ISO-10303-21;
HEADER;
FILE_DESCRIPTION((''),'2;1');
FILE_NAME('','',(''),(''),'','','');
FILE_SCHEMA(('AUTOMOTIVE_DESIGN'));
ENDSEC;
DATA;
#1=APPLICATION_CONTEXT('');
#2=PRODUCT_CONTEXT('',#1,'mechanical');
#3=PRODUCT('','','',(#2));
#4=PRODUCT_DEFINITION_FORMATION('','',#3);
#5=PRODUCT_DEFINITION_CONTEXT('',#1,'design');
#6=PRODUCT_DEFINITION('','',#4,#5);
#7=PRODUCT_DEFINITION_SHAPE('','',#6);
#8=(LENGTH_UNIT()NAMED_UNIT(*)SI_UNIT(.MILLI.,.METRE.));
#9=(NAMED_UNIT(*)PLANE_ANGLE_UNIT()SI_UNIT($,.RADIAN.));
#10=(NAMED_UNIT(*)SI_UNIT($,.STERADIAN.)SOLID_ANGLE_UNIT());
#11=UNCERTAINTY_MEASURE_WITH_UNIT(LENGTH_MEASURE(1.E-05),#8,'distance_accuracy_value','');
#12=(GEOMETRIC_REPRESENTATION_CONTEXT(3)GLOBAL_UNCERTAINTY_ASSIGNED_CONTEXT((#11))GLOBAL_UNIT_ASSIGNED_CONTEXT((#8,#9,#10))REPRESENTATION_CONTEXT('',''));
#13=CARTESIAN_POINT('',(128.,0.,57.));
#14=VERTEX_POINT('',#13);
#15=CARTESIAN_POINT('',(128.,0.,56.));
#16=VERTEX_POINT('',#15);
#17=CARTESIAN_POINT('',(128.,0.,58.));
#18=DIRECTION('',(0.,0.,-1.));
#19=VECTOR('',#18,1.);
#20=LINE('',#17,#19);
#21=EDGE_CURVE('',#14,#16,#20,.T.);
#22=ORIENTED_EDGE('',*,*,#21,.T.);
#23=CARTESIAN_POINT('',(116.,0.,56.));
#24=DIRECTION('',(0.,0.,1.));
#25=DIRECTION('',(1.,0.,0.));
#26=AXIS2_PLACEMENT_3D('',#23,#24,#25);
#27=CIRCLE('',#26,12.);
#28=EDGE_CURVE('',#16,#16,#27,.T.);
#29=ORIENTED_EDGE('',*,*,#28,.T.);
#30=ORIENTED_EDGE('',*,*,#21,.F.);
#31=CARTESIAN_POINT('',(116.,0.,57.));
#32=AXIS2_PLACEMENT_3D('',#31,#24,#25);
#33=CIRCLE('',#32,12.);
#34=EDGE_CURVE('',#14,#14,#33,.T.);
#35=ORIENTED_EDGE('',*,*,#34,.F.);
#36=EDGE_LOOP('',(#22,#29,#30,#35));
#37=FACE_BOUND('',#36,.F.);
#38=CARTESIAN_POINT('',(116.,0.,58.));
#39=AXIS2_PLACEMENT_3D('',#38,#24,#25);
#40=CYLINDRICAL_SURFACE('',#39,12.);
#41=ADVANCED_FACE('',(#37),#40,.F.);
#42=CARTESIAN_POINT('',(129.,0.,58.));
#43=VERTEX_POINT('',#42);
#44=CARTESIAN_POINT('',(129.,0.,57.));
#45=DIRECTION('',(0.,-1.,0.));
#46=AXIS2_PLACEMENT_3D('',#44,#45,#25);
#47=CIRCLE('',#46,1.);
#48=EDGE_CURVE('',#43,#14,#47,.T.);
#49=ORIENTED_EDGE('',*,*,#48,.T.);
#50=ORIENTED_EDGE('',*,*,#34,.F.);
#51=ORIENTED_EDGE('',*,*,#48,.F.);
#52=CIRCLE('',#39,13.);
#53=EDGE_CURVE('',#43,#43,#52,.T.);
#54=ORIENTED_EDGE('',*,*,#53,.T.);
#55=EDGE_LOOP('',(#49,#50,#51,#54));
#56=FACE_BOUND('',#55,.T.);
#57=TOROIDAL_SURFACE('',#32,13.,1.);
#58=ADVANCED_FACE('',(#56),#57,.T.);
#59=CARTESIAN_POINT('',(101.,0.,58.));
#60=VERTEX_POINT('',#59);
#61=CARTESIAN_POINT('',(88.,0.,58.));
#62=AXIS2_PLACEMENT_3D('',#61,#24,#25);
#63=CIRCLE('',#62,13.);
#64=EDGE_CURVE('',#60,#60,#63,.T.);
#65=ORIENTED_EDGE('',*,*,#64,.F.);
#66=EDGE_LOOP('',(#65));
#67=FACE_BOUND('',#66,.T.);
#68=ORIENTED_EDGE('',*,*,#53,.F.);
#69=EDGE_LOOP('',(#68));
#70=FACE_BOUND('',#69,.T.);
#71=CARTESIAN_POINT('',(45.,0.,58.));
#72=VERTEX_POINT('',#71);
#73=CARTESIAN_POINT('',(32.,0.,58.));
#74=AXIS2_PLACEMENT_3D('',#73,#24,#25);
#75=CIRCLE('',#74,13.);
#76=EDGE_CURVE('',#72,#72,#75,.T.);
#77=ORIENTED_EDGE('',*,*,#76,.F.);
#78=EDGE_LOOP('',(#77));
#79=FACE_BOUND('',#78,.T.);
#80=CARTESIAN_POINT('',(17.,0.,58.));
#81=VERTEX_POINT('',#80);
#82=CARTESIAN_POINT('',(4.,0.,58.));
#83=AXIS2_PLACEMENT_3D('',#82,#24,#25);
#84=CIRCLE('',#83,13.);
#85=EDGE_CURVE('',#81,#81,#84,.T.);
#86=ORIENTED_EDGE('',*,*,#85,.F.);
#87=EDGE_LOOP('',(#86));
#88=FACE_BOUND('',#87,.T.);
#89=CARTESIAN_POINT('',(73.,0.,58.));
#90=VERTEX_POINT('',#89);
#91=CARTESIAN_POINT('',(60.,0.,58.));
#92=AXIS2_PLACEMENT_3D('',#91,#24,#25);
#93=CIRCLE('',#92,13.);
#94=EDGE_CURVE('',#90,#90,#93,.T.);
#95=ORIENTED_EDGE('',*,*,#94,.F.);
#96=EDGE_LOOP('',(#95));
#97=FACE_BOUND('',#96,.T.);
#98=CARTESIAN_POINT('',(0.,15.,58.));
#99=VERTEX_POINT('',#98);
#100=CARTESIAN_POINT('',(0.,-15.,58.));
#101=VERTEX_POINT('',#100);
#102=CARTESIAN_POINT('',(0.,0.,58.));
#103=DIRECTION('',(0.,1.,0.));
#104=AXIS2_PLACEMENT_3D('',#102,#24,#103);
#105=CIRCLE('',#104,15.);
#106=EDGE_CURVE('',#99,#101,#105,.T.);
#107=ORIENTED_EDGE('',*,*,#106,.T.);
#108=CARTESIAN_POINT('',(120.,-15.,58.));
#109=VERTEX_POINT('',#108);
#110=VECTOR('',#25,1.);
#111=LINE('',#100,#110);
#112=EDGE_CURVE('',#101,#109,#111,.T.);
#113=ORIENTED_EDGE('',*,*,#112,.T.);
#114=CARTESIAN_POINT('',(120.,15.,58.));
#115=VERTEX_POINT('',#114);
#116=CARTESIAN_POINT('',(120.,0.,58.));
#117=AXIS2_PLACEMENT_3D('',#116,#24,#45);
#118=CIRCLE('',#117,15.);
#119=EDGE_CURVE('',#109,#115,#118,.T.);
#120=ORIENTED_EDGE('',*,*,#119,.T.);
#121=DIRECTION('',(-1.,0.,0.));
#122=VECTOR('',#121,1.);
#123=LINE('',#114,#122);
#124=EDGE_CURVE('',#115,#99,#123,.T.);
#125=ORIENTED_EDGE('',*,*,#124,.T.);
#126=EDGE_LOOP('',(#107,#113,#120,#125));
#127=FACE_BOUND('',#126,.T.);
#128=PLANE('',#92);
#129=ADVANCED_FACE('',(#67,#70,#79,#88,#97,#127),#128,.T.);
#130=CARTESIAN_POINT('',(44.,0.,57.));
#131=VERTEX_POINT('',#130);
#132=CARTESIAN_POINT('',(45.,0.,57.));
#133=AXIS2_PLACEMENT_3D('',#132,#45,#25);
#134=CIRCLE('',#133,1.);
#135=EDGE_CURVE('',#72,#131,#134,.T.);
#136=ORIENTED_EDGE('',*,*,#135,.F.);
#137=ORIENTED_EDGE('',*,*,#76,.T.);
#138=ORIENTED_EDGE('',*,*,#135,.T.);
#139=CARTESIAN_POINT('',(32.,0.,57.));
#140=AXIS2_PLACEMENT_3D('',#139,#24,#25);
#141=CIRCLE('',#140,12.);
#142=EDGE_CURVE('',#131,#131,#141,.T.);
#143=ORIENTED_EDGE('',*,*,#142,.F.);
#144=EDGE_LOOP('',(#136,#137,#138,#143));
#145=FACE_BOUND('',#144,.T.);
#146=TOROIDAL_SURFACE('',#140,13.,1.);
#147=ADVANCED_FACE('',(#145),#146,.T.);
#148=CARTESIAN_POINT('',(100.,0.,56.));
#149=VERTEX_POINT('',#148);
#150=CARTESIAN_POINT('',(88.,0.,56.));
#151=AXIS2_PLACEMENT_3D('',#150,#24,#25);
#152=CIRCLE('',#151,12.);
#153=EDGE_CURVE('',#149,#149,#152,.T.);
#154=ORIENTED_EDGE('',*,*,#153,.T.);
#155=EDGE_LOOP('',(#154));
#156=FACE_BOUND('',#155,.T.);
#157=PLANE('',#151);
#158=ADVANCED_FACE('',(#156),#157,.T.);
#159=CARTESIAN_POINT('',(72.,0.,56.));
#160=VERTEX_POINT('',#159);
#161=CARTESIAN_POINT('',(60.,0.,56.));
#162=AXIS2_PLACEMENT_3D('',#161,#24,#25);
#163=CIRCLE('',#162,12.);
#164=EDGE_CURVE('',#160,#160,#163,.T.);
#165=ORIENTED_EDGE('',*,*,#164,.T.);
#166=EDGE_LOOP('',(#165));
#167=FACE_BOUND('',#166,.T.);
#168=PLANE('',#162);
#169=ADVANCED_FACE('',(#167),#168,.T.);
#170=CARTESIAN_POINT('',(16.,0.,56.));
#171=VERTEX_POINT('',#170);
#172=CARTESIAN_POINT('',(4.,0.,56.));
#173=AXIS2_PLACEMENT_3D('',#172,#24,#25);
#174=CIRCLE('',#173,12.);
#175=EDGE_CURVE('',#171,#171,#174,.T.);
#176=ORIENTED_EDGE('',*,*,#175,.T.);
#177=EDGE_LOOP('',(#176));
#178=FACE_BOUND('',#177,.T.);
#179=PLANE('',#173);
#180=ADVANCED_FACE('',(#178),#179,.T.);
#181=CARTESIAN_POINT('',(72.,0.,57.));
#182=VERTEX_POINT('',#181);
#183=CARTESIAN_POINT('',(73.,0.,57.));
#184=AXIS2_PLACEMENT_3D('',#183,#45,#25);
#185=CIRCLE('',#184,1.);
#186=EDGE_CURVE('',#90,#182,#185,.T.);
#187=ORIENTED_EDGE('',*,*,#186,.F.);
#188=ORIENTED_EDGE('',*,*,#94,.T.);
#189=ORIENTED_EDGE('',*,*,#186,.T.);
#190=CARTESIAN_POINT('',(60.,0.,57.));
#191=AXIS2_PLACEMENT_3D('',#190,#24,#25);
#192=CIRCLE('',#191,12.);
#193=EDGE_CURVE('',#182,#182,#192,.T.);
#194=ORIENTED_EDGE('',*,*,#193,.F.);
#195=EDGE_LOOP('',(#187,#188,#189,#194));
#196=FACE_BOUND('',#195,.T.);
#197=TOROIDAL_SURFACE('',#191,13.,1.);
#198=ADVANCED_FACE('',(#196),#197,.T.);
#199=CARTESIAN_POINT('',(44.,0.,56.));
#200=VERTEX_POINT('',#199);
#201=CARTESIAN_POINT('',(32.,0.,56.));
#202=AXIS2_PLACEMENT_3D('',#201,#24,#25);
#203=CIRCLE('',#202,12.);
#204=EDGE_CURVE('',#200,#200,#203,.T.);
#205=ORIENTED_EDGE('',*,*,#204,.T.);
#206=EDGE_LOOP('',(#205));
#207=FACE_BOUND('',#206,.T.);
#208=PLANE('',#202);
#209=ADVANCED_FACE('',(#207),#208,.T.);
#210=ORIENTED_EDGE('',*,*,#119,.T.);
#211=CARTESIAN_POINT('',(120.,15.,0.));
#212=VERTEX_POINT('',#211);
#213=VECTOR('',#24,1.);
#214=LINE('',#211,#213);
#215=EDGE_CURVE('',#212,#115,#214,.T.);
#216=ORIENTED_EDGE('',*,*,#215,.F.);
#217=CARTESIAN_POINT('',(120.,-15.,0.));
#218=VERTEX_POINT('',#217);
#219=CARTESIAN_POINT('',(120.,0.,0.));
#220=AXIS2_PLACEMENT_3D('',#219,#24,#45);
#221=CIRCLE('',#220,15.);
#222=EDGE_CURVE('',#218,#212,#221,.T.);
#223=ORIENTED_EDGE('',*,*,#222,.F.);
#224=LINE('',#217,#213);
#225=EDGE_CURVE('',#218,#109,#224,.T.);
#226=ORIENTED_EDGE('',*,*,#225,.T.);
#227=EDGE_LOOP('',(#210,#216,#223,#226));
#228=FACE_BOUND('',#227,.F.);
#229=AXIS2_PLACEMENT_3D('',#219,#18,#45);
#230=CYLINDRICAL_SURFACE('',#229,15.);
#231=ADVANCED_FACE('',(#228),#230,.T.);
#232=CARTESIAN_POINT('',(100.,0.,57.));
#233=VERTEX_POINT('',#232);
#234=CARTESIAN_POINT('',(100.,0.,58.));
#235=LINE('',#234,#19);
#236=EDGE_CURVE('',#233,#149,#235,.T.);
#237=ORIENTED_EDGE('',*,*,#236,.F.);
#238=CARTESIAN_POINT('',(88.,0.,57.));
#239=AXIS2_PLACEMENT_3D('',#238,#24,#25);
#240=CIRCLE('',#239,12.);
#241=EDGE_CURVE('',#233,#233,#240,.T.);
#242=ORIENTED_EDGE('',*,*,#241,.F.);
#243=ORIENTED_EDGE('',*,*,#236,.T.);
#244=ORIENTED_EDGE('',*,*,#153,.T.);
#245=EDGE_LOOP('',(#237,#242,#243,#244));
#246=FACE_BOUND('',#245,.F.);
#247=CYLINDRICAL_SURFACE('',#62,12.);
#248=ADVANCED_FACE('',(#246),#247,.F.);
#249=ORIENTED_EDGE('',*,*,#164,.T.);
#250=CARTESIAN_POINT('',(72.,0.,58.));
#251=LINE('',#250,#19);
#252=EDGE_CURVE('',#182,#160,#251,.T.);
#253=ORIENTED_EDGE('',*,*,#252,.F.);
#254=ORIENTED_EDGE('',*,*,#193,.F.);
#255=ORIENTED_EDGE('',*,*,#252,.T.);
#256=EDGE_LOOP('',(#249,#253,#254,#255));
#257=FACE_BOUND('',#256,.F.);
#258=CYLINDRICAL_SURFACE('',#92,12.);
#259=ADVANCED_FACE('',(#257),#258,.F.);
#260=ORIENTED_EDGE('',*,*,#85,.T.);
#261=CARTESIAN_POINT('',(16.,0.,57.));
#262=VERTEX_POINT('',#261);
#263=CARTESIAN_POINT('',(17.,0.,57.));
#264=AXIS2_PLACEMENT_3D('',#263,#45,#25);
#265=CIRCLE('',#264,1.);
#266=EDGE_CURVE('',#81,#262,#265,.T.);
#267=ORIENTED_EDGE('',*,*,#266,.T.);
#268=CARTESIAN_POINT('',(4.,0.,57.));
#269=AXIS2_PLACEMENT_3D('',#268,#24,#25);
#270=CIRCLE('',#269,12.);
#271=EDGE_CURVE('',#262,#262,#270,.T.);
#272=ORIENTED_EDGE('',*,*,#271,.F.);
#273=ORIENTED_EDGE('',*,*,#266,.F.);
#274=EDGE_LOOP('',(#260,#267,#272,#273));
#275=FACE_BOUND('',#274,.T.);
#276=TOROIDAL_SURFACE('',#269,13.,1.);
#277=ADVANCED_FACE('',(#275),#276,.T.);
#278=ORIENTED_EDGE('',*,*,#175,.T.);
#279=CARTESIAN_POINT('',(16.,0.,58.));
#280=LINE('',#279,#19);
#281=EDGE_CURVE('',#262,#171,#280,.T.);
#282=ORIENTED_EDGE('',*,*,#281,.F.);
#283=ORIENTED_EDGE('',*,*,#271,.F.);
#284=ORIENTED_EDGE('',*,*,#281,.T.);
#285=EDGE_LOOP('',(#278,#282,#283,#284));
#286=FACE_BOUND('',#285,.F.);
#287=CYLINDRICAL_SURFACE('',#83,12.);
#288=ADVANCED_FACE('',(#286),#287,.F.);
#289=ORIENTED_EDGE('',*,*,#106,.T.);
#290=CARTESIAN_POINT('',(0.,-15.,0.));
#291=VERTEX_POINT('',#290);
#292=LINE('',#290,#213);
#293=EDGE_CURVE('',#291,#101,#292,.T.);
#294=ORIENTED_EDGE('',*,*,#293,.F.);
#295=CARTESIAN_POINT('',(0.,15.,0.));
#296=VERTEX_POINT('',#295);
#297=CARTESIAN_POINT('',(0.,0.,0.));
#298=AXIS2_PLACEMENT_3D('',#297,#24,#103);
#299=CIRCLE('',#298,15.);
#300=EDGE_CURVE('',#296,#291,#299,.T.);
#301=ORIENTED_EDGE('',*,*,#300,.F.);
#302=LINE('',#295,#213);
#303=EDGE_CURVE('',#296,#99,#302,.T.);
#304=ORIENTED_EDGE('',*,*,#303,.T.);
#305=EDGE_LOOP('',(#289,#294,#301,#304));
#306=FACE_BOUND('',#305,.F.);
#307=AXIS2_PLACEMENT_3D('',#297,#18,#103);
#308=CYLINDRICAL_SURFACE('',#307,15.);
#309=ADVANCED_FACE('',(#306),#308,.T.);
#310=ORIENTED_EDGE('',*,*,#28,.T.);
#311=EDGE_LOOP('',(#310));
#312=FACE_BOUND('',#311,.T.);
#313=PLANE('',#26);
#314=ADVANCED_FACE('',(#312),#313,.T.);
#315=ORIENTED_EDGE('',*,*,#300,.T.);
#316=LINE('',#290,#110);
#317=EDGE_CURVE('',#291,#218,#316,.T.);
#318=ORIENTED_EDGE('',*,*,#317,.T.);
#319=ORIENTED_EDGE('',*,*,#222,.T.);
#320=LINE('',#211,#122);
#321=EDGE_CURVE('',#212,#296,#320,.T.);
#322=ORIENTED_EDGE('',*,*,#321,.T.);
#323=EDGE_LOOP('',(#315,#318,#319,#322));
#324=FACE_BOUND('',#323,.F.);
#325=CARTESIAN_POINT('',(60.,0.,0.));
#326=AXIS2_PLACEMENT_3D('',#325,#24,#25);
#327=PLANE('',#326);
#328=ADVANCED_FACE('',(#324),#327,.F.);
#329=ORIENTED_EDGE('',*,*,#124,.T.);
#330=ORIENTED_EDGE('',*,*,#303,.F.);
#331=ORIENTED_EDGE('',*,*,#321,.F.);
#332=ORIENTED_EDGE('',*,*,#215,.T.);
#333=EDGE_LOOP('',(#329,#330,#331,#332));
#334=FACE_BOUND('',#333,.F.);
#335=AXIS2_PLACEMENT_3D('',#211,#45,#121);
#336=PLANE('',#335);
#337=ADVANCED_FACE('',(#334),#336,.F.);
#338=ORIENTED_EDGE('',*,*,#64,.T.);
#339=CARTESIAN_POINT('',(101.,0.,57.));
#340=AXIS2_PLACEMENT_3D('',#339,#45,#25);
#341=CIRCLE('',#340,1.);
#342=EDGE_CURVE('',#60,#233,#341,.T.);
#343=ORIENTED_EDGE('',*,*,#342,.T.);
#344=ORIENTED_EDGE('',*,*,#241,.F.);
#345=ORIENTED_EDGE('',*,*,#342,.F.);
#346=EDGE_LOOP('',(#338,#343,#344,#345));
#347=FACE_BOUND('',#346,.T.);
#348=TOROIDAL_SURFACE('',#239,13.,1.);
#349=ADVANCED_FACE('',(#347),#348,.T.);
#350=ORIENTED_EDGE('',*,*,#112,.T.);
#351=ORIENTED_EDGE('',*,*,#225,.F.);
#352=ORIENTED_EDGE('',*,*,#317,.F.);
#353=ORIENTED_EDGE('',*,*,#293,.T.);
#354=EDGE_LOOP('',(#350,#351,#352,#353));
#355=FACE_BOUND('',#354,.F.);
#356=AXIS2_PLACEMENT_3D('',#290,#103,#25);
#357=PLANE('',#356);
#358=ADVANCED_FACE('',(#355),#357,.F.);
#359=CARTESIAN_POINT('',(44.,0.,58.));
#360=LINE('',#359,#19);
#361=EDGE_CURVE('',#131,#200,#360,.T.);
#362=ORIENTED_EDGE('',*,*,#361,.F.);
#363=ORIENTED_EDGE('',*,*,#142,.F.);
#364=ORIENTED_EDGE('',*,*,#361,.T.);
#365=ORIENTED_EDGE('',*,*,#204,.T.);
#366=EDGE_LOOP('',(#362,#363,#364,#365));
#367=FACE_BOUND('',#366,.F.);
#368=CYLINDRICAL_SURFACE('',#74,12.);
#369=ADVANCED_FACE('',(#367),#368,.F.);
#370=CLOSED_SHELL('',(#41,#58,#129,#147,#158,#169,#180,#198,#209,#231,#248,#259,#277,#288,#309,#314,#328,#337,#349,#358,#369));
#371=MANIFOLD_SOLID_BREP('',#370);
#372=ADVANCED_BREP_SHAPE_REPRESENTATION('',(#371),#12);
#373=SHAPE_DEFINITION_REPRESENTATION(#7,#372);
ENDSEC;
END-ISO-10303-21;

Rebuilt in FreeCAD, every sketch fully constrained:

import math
import FreeCAD as App
import Part
import Sketcher

V = App.Vector


def edges_at(feature, points):
    """Names of the edges that pass closest to the given points."""
    edges = feature.Shape.Edges
    near = lambda p: min(range(len(edges)), key=lambda i: edges[i].distToShape(Part.Vertex(*p))[0])
    return sorted({f"Edge{near(p) + 1}" for p in points})

doc = App.newDocument("Part")
body = doc.addObject("PartDesign::Body", "Body")

sketch1 = body.newObject("Sketcher::SketchObject", "Sketch")
sketch1.AttachmentSupport = (doc.getObject("XY_Plane"), [""])
sketch1.MapMode = "FlatFace"
sketch1.addGeometry([
    Part.LineSegment(V(120, 15, 0), V(0, 15, 0)),
    Part.ArcOfCircle(Part.Circle(V(0, 0, 0), V(0, 0, 1), 15), math.radians(90), math.radians(270)),
    Part.LineSegment(V(0, -15, 0), V(120, -15, 0)),
    Part.ArcOfCircle(Part.Circle(V(120, 0, 0), V(0, 0, 1), 15), math.radians(-90), math.radians(90)),
], False)
sketch1.addConstraint([
    Sketcher.Constraint("Tangent", 0, 2, 1, 1),
    Sketcher.Constraint("Tangent", 1, 2, 2, 1),
    Sketcher.Constraint("Tangent", 2, 2, 3, 1),
    Sketcher.Constraint("Tangent", 3, 2, 0, 1),
    Sketcher.Constraint("Horizontal", 0),
    Sketcher.Constraint("Horizontal", 2),
    Sketcher.Constraint("Coincident", 1, 3, -1, 1),
    Sketcher.Constraint("Radius", 1, 15.0),
    Sketcher.Constraint("DistanceX", 0, 2, 0, 1, 120.0),
])
pad1 = body.newObject("PartDesign::Pad", "Pad")
pad1.Profile = sketch1
pad1.Length = 58

sketch2 = body.newObject("Sketcher::SketchObject", "Sketch001")
sketch2.AttachmentSupport = (doc.getObject("XY_Plane"), [""])
sketch2.MapMode = "FlatFace"
sketch2.AttachmentOffset = App.Placement(V(0, 0, 58), App.Rotation())
sketch2.addGeometry([
    Part.Circle(V(60, 0, 0), V(0, 0, 1), 12),
    Part.Circle(V(88, 0, 0), V(0, 0, 1), 12),
    Part.Circle(V(116, 0, 0), V(0, 0, 1), 12),
    Part.Circle(V(32, 0, 0), V(0, 0, 1), 12),
    Part.Circle(V(4, 0, 0), V(0, 0, 1), 12),
], False)
sketch2.addConstraint([
    Sketcher.Constraint("Equal", 0, 1),
    Sketcher.Constraint("Equal", 1, 2),
    Sketcher.Constraint("Equal", 2, 3),
    Sketcher.Constraint("Equal", 3, 4),
    Sketcher.Constraint("PointOnObject", 0, 3, -1),
    Sketcher.Constraint("PointOnObject", 1, 3, -1),
    Sketcher.Constraint("PointOnObject", 2, 3, -1),
    Sketcher.Constraint("PointOnObject", 3, 3, -1),
    Sketcher.Constraint("PointOnObject", 4, 3, -1),
    Sketcher.Constraint("Diameter", 0, 24.0),
    Sketcher.Constraint("DistanceX", -1, 1, 0, 3, 60.0),
    Sketcher.Constraint("DistanceX", -1, 1, 1, 3, 88.0),
    Sketcher.Constraint("DistanceX", -1, 1, 2, 3, 116.0),
    Sketcher.Constraint("DistanceX", -1, 1, 3, 3, 32.0),
    Sketcher.Constraint("DistanceX", -1, 1, 4, 3, 4.0),
])
pocket1 = body.newObject("PartDesign::Pocket", "Pocket")
pocket1.Profile = sketch2
pocket1.Length = 2
doc.recompute()

fillet = body.newObject("PartDesign::Fillet", "Fillet")
fillet.Base = (pocket1, edges_at(pocket1, [
    (-8, 0, 58),
    (20, 0, 58),
    (104, 0, 58),
    (76, 0, 58),
    (48, 0, 58),
]))
fillet.Radius = 1

doc.recompute()
